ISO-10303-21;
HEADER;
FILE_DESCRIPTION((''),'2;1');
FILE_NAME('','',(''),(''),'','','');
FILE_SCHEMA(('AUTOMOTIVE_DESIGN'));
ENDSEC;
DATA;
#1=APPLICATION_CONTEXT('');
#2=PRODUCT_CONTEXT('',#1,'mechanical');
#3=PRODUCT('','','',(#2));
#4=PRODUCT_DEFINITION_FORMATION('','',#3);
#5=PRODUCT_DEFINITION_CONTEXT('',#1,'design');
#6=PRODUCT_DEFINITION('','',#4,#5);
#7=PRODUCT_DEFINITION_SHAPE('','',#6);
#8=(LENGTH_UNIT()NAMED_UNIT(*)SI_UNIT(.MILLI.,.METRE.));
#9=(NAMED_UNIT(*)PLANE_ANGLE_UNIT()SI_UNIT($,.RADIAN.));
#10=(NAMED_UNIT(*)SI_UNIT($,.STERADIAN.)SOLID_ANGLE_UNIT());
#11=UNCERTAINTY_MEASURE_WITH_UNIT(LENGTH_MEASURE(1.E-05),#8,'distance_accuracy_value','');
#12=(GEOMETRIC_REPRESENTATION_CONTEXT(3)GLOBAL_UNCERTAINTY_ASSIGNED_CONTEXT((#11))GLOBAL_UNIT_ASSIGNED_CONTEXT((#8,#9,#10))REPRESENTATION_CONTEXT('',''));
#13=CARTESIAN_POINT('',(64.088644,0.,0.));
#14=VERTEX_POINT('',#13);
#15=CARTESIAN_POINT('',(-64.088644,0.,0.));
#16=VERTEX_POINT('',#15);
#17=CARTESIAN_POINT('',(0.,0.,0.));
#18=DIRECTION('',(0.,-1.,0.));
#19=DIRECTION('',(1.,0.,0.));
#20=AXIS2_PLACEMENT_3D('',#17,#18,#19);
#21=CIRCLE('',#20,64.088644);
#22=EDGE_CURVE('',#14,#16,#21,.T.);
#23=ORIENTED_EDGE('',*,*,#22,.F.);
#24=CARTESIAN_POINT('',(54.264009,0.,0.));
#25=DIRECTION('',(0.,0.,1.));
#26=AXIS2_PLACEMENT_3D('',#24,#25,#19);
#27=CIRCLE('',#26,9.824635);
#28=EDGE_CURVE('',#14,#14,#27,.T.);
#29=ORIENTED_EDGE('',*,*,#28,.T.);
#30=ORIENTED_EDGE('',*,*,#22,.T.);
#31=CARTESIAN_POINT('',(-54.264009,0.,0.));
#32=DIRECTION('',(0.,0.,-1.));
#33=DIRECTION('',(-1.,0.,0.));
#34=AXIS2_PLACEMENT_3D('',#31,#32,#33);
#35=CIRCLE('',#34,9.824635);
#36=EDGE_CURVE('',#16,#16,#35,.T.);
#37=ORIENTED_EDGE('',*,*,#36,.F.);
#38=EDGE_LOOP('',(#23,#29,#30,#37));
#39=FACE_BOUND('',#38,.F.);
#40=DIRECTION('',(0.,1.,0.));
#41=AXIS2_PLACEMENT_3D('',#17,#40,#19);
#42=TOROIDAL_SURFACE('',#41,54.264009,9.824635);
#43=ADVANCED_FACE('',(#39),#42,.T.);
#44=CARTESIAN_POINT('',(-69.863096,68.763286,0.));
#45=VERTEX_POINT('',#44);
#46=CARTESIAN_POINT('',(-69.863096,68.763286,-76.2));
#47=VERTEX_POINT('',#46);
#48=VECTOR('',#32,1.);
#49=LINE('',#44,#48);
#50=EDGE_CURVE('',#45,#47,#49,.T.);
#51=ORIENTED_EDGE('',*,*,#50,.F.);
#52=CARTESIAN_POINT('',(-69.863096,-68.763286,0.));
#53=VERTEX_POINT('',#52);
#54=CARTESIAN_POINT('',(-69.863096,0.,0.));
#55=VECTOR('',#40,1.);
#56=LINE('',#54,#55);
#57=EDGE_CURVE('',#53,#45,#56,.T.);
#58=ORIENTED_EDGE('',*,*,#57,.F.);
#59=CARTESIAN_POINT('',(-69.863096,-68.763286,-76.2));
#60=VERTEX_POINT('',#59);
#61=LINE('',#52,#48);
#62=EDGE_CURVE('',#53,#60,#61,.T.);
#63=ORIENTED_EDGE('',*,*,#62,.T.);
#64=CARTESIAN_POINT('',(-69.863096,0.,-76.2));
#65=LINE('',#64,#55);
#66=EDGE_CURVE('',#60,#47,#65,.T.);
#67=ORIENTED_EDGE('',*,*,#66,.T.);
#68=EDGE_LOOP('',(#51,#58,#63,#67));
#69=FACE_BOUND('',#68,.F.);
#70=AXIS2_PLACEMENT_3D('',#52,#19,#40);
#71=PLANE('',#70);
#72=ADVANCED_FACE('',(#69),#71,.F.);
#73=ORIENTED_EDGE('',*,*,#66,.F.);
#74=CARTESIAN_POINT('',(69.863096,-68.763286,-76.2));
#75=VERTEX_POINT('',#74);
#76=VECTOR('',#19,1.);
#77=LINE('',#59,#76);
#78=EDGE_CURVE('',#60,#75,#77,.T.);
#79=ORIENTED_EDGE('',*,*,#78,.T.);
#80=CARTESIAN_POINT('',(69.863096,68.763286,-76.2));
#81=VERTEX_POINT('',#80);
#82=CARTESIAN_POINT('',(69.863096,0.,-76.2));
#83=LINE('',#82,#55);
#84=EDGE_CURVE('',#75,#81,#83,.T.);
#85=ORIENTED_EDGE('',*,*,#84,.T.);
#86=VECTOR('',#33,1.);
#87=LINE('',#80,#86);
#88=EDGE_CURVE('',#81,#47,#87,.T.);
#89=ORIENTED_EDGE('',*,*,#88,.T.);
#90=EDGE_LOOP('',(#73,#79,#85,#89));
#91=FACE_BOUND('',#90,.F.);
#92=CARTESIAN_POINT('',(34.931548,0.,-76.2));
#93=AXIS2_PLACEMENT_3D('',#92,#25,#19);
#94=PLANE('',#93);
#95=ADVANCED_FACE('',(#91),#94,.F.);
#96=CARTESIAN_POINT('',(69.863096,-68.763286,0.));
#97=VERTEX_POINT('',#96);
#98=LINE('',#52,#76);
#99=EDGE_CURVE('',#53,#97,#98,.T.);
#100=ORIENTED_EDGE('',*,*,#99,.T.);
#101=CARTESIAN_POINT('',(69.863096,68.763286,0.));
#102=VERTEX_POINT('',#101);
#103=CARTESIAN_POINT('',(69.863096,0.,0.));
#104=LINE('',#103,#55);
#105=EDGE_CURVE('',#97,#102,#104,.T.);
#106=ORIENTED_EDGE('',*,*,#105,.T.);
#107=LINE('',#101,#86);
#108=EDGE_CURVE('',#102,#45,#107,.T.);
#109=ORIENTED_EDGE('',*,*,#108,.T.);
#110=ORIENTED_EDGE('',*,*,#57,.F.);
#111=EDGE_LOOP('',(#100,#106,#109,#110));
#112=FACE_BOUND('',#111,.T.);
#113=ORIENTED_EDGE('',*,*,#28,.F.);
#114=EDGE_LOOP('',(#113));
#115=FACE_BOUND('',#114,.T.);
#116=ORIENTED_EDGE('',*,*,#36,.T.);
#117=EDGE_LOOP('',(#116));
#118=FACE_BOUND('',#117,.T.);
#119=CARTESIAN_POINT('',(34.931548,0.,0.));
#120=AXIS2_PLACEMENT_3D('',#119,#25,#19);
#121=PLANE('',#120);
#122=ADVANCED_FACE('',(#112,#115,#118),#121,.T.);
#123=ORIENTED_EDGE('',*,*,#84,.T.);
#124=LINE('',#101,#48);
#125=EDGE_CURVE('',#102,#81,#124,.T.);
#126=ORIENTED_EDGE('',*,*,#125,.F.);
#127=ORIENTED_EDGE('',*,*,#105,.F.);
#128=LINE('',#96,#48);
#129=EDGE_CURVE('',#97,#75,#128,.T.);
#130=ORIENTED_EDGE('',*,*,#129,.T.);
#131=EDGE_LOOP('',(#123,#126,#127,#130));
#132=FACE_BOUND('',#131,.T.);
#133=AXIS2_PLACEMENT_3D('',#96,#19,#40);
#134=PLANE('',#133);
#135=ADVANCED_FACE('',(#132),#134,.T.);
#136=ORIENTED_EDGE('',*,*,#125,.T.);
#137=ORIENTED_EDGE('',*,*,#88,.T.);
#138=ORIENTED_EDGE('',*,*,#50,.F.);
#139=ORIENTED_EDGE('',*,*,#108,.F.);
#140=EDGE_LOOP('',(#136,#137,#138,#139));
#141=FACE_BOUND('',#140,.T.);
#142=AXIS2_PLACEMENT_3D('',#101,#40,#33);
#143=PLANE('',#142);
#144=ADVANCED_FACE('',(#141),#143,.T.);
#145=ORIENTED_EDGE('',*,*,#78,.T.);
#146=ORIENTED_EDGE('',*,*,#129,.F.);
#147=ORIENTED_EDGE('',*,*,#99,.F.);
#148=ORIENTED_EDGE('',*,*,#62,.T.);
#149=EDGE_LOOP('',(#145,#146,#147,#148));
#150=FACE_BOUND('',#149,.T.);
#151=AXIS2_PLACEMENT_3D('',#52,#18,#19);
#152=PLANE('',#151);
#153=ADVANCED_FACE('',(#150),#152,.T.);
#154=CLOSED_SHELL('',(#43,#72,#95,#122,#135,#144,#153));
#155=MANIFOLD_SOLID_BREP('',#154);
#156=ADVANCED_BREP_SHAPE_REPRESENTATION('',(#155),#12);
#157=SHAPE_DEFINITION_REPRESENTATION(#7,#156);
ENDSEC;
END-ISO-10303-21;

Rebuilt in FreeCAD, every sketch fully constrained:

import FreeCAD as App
import Part
import Sketcher
from FreeCAD import Vector
Q = App.Units.Quantity


def add_polygon(sketch, points):
    """Adds a closed chain of lines whose ends are joined by coincident constraints."""
    first, n = sketch.GeometryCount, len(points)
    for a, b in zip(points, points[1:] + points[:1]):
        sketch.addGeometry(Part.LineSegment(App.Vector(*a, 0), App.Vector(*b, 0)), False)
    for i in range(n):
        sketch.addConstraint(Sketcher.Constraint("Coincident", first + i, 2, first + (i + 1) % n, 1))

doc = App.newDocument("Part")
body = doc.addObject("PartDesign::Body", "Body")

# Sketch on XY plane
sketch1 = body.newObject("Sketcher::SketchObject", "Sketch")
sketch1.AttachmentSupport = (doc.getObject("XY_Plane"), [""])
sketch1.MapMode = "FlatFace"
add_polygon(sketch1, [(70, -69), (70, 69), (-70, 69), (-70, -69)])  # lines 0-3
sketch1.addConstraint([
    Sketcher.Constraint("Vertical", 0),
    Sketcher.Constraint("Horizontal", 1),
    Sketcher.Constraint("Vertical", 2),
    Sketcher.Constraint("Horizontal", 3),
    Sketcher.Constraint("Symmetric", 0, 2, 2, 2, -1, 1),
    Sketcher.Constraint("DistanceX", 1, 2, 1, 1, 139.726192),
    Sketcher.Constraint("DistanceY", 0, 1, 0, 2, 137.526572),
])
pad1 = body.newObject("PartDesign::Pad", "Pad")
pad1.Profile = sketch1
pad1.Length = Q("3 in")
pad1.Reversed = True

# Sketch on XY plane
sketch2 = body.newObject("Sketcher::SketchObject", "Sketch001")
sketch2.AttachmentSupport = (doc.getObject("XY_Plane"), [""])
sketch2.MapMode = "FlatFace"
sketch2.addGeometry(Part.Circle(Vector(54, 0, 0), Vector(0, 0, 1), 10), False)
sketch2.addConstraint([
    Sketcher.Constraint("PointOnObject", 0, 3, -1),
    Sketcher.Constraint("Diameter", 0, 19.64927),
    Sketcher.Constraint("DistanceX", -1, 1, 0, 3, 54.264009),
])
revolution = body.newObject("PartDesign::Revolution", "Revolution")
revolution.Profile = sketch2
revolution.ReferenceAxis = (sketch2, ["V_Axis"])
revolution.Angle = 180
revolution.Reversed = True

doc.recompute()
